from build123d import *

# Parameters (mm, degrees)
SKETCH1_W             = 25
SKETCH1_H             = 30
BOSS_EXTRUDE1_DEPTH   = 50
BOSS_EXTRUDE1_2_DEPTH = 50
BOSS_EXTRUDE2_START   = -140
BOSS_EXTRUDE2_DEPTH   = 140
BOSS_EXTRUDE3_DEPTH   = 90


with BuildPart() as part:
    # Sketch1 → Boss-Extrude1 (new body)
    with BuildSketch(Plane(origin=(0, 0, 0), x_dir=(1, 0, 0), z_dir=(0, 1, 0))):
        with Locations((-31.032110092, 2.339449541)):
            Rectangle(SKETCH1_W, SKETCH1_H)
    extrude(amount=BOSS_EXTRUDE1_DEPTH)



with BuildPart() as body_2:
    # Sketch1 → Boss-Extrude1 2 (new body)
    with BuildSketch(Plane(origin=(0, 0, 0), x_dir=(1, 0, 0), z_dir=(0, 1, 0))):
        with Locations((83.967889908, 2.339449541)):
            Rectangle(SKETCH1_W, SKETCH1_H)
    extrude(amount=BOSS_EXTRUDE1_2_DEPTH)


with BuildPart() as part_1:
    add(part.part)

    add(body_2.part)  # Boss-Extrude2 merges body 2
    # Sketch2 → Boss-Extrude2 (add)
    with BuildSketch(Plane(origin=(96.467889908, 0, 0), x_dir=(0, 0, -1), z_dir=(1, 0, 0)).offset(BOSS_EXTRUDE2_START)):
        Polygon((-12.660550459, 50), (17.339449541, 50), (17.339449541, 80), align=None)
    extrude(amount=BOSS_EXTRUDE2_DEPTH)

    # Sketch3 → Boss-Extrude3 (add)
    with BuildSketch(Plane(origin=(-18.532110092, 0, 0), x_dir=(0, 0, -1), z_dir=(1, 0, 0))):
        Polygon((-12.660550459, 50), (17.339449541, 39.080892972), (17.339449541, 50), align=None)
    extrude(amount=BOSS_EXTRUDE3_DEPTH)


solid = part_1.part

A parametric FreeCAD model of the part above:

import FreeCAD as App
import Part
import Sketcher

V = App.Vector
Q = App.Units.Quantity


def add_polygon(sketch, points):
    """Adds a closed chain of lines whose ends are joined by coincident constraints."""
    first, n = sketch.GeometryCount, len(points)
    for a, b in zip(points, points[1:] + points[:1]):
        sketch.addGeometry(Part.LineSegment(App.Vector(*a, 0), App.Vector(*b, 0)), False)
    for i in range(n):
        sketch.addConstraint(Sketcher.Constraint("Coincident", first + i, 2, first + (i + 1) % n, 1))

doc = App.newDocument("Part")
body = doc.addObject("PartDesign::Body", "Body")

# Sketch on XZ plane
sketch1 = doc.addObject("Sketcher::SketchObject", "Sketch")
body.addObject(sketch1)
sketch1.AttachmentSupport = (doc.XZ_Plane, [""])
sketch1.MapMode = "FlatFace"
add_polygon(sketch1, [(-43.53211, -17.33945), (-43.53211, 12.66055), (-18.53211, 12.66055), (-18.53211, -17.33945)])  # lines 0-3
sketch1.addConstraint(Sketcher.Constraint("Vertical", 0))
sketch1.addConstraint(Sketcher.Constraint("Horizontal", 1))
sketch1.addConstraint(Sketcher.Constraint("Vertical", 2))
sketch1.addConstraint(Sketcher.Constraint("Horizontal", 3))
sketch1.addConstraint(Sketcher.Constraint("DistanceX", 1, 1, 1, 2, Q("25 mm")))
sketch1.addConstraint(Sketcher.Constraint("DistanceY", 0, 1, 0, 2, Q("30 mm")))
sketch1.addConstraint(Sketcher.Constraint("DistanceX", 0, 2, -1, 1, Q("43.53211 mm")))
sketch1.addConstraint(Sketcher.Constraint("DistanceY", -1, 1, 0, 2, Q("12.66055 mm")))
pad1 = doc.addObject("PartDesign::Pad", "Pad")
body.addObject(pad1)
pad1.Profile = sketch1
pad1.Length = 50
pad1.Reversed = True
body2 = doc.addObject("PartDesign::Body", "Body001")

# Sketch on XZ plane
sketch2 = doc.addObject("Sketcher::SketchObject", "Sketch001")
body2.addObject(sketch2)
sketch2.AttachmentSupport = (doc.getObject("XZ_Plane001"), [""])
sketch2.MapMode = "FlatFace"
add_polygon(sketch2, [(71.46789, -17.33945), (71.46789, 12.66055), (96.46789, 12.66055), (96.46789, -17.33945)])  # lines 0-3
sketch2.addConstraint(Sketcher.Constraint("Vertical", 0))
sketch2.addConstraint(Sketcher.Constraint("Horizontal", 1))
sketch2.addConstraint(Sketcher.Constraint("Vertical", 2))
sketch2.addConstraint(Sketcher.Constraint("Horizontal", 3))
sketch2.addConstraint(Sketcher.Constraint("DistanceX", 1, 1, 1, 2, Q("25 mm")))
sketch2.addConstraint(Sketcher.Constraint("DistanceY", 0, 1, 0, 2, Q("30 mm")))
sketch2.addConstraint(Sketcher.Constraint("DistanceX", -1, 1, 0, 2, Q("71.46789 mm")))
sketch2.addConstraint(Sketcher.Constraint("DistanceY", -1, 1, 0, 2, Q("12.66055 mm")))
pad2 = doc.addObject("PartDesign::Pad", "Pad001")
body2.addObject(pad2)
pad2.Profile = sketch2
pad2.Length = 50
pad2.Reversed = True
body.AllowCompound = True
doc.recompute()

boolean = doc.addObject("PartDesign::Boolean", "Boolean")
body.addObject(boolean)
boolean.Type = "Fuse"
boolean.addObjects([body2])

# Sketch on YZ plane
sketch3 = doc.addObject("Sketcher::SketchObject", "Sketch002")
body.addObject(sketch3)
sketch3.AttachmentSupport = (doc.YZ_Plane, [""])
sketch3.MapMode = "FlatFace"
sketch3.AttachmentOffset = App.Placement(V(0, 0, -43.53211), App.Rotation())
add_polygon(sketch3, [(50, 12.66055), (50, -17.33945), (80, -17.33945)])  # lines 0-2
sketch3.addConstraint(Sketcher.Constraint("Vertical", 0))
sketch3.addConstraint(Sketcher.Constraint("Horizontal", 1))
sketch3.addConstraint(Sketcher.Constraint("Equal", 1, 0))
sketch3.addConstraint(Sketcher.Constraint("DistanceX", 1, 1, 1, 2, Q("30 mm")))
sketch3.addConstraint(Sketcher.Constraint("DistanceX", -1, 1, 0, 2, Q("50 mm")))
sketch3.addConstraint(Sketcher.Constraint("DistanceY", 0, 2, -1, 1, Q("17.33945 mm")))
pad3 = doc.addObject("PartDesign::Pad", "Pad002")
body.addObject(pad3)
pad3.Profile = sketch3
pad3.Length = 140

# Sketch on YZ plane
sketch4 = doc.addObject("Sketcher::SketchObject", "Sketch003")
body.addObject(sketch4)
sketch4.AttachmentSupport = (doc.YZ_Plane, [""])
sketch4.MapMode = "FlatFace"
sketch4.AttachmentOffset = App.Placement(V(0, 0, -18.53211), App.Rotation())
add_polygon(sketch4, [(50, 12.66055), (39.080893, -17.33945), (50, -17.33945)])  # lines 0-2
sketch4.addConstraint(Sketcher.Constraint("Horizontal", 1))
sketch4.addConstraint(Sketcher.Constraint("Vertical", 2))
sketch4.addConstraint(Sketcher.Constraint("DistanceY", 2, 1, 2, 2, Q("30 mm")))
sketch4.addConstraint(Sketcher.Constraint("Angle", 0, Q("-110 deg")))
sketch4.addConstraint(Sketcher.Constraint("DistanceX", -1, 1, 1, 2, Q("50 mm")))
sketch4.addConstraint(Sketcher.Constraint("DistanceY", 0, 2, -1, 1, Q("17.33945 mm")))
pad4 = doc.addObject("PartDesign::Pad", "Pad003")
body.addObject(pad4)
pad4.Profile = sketch4
pad4.Length = 90

doc.recompute()
